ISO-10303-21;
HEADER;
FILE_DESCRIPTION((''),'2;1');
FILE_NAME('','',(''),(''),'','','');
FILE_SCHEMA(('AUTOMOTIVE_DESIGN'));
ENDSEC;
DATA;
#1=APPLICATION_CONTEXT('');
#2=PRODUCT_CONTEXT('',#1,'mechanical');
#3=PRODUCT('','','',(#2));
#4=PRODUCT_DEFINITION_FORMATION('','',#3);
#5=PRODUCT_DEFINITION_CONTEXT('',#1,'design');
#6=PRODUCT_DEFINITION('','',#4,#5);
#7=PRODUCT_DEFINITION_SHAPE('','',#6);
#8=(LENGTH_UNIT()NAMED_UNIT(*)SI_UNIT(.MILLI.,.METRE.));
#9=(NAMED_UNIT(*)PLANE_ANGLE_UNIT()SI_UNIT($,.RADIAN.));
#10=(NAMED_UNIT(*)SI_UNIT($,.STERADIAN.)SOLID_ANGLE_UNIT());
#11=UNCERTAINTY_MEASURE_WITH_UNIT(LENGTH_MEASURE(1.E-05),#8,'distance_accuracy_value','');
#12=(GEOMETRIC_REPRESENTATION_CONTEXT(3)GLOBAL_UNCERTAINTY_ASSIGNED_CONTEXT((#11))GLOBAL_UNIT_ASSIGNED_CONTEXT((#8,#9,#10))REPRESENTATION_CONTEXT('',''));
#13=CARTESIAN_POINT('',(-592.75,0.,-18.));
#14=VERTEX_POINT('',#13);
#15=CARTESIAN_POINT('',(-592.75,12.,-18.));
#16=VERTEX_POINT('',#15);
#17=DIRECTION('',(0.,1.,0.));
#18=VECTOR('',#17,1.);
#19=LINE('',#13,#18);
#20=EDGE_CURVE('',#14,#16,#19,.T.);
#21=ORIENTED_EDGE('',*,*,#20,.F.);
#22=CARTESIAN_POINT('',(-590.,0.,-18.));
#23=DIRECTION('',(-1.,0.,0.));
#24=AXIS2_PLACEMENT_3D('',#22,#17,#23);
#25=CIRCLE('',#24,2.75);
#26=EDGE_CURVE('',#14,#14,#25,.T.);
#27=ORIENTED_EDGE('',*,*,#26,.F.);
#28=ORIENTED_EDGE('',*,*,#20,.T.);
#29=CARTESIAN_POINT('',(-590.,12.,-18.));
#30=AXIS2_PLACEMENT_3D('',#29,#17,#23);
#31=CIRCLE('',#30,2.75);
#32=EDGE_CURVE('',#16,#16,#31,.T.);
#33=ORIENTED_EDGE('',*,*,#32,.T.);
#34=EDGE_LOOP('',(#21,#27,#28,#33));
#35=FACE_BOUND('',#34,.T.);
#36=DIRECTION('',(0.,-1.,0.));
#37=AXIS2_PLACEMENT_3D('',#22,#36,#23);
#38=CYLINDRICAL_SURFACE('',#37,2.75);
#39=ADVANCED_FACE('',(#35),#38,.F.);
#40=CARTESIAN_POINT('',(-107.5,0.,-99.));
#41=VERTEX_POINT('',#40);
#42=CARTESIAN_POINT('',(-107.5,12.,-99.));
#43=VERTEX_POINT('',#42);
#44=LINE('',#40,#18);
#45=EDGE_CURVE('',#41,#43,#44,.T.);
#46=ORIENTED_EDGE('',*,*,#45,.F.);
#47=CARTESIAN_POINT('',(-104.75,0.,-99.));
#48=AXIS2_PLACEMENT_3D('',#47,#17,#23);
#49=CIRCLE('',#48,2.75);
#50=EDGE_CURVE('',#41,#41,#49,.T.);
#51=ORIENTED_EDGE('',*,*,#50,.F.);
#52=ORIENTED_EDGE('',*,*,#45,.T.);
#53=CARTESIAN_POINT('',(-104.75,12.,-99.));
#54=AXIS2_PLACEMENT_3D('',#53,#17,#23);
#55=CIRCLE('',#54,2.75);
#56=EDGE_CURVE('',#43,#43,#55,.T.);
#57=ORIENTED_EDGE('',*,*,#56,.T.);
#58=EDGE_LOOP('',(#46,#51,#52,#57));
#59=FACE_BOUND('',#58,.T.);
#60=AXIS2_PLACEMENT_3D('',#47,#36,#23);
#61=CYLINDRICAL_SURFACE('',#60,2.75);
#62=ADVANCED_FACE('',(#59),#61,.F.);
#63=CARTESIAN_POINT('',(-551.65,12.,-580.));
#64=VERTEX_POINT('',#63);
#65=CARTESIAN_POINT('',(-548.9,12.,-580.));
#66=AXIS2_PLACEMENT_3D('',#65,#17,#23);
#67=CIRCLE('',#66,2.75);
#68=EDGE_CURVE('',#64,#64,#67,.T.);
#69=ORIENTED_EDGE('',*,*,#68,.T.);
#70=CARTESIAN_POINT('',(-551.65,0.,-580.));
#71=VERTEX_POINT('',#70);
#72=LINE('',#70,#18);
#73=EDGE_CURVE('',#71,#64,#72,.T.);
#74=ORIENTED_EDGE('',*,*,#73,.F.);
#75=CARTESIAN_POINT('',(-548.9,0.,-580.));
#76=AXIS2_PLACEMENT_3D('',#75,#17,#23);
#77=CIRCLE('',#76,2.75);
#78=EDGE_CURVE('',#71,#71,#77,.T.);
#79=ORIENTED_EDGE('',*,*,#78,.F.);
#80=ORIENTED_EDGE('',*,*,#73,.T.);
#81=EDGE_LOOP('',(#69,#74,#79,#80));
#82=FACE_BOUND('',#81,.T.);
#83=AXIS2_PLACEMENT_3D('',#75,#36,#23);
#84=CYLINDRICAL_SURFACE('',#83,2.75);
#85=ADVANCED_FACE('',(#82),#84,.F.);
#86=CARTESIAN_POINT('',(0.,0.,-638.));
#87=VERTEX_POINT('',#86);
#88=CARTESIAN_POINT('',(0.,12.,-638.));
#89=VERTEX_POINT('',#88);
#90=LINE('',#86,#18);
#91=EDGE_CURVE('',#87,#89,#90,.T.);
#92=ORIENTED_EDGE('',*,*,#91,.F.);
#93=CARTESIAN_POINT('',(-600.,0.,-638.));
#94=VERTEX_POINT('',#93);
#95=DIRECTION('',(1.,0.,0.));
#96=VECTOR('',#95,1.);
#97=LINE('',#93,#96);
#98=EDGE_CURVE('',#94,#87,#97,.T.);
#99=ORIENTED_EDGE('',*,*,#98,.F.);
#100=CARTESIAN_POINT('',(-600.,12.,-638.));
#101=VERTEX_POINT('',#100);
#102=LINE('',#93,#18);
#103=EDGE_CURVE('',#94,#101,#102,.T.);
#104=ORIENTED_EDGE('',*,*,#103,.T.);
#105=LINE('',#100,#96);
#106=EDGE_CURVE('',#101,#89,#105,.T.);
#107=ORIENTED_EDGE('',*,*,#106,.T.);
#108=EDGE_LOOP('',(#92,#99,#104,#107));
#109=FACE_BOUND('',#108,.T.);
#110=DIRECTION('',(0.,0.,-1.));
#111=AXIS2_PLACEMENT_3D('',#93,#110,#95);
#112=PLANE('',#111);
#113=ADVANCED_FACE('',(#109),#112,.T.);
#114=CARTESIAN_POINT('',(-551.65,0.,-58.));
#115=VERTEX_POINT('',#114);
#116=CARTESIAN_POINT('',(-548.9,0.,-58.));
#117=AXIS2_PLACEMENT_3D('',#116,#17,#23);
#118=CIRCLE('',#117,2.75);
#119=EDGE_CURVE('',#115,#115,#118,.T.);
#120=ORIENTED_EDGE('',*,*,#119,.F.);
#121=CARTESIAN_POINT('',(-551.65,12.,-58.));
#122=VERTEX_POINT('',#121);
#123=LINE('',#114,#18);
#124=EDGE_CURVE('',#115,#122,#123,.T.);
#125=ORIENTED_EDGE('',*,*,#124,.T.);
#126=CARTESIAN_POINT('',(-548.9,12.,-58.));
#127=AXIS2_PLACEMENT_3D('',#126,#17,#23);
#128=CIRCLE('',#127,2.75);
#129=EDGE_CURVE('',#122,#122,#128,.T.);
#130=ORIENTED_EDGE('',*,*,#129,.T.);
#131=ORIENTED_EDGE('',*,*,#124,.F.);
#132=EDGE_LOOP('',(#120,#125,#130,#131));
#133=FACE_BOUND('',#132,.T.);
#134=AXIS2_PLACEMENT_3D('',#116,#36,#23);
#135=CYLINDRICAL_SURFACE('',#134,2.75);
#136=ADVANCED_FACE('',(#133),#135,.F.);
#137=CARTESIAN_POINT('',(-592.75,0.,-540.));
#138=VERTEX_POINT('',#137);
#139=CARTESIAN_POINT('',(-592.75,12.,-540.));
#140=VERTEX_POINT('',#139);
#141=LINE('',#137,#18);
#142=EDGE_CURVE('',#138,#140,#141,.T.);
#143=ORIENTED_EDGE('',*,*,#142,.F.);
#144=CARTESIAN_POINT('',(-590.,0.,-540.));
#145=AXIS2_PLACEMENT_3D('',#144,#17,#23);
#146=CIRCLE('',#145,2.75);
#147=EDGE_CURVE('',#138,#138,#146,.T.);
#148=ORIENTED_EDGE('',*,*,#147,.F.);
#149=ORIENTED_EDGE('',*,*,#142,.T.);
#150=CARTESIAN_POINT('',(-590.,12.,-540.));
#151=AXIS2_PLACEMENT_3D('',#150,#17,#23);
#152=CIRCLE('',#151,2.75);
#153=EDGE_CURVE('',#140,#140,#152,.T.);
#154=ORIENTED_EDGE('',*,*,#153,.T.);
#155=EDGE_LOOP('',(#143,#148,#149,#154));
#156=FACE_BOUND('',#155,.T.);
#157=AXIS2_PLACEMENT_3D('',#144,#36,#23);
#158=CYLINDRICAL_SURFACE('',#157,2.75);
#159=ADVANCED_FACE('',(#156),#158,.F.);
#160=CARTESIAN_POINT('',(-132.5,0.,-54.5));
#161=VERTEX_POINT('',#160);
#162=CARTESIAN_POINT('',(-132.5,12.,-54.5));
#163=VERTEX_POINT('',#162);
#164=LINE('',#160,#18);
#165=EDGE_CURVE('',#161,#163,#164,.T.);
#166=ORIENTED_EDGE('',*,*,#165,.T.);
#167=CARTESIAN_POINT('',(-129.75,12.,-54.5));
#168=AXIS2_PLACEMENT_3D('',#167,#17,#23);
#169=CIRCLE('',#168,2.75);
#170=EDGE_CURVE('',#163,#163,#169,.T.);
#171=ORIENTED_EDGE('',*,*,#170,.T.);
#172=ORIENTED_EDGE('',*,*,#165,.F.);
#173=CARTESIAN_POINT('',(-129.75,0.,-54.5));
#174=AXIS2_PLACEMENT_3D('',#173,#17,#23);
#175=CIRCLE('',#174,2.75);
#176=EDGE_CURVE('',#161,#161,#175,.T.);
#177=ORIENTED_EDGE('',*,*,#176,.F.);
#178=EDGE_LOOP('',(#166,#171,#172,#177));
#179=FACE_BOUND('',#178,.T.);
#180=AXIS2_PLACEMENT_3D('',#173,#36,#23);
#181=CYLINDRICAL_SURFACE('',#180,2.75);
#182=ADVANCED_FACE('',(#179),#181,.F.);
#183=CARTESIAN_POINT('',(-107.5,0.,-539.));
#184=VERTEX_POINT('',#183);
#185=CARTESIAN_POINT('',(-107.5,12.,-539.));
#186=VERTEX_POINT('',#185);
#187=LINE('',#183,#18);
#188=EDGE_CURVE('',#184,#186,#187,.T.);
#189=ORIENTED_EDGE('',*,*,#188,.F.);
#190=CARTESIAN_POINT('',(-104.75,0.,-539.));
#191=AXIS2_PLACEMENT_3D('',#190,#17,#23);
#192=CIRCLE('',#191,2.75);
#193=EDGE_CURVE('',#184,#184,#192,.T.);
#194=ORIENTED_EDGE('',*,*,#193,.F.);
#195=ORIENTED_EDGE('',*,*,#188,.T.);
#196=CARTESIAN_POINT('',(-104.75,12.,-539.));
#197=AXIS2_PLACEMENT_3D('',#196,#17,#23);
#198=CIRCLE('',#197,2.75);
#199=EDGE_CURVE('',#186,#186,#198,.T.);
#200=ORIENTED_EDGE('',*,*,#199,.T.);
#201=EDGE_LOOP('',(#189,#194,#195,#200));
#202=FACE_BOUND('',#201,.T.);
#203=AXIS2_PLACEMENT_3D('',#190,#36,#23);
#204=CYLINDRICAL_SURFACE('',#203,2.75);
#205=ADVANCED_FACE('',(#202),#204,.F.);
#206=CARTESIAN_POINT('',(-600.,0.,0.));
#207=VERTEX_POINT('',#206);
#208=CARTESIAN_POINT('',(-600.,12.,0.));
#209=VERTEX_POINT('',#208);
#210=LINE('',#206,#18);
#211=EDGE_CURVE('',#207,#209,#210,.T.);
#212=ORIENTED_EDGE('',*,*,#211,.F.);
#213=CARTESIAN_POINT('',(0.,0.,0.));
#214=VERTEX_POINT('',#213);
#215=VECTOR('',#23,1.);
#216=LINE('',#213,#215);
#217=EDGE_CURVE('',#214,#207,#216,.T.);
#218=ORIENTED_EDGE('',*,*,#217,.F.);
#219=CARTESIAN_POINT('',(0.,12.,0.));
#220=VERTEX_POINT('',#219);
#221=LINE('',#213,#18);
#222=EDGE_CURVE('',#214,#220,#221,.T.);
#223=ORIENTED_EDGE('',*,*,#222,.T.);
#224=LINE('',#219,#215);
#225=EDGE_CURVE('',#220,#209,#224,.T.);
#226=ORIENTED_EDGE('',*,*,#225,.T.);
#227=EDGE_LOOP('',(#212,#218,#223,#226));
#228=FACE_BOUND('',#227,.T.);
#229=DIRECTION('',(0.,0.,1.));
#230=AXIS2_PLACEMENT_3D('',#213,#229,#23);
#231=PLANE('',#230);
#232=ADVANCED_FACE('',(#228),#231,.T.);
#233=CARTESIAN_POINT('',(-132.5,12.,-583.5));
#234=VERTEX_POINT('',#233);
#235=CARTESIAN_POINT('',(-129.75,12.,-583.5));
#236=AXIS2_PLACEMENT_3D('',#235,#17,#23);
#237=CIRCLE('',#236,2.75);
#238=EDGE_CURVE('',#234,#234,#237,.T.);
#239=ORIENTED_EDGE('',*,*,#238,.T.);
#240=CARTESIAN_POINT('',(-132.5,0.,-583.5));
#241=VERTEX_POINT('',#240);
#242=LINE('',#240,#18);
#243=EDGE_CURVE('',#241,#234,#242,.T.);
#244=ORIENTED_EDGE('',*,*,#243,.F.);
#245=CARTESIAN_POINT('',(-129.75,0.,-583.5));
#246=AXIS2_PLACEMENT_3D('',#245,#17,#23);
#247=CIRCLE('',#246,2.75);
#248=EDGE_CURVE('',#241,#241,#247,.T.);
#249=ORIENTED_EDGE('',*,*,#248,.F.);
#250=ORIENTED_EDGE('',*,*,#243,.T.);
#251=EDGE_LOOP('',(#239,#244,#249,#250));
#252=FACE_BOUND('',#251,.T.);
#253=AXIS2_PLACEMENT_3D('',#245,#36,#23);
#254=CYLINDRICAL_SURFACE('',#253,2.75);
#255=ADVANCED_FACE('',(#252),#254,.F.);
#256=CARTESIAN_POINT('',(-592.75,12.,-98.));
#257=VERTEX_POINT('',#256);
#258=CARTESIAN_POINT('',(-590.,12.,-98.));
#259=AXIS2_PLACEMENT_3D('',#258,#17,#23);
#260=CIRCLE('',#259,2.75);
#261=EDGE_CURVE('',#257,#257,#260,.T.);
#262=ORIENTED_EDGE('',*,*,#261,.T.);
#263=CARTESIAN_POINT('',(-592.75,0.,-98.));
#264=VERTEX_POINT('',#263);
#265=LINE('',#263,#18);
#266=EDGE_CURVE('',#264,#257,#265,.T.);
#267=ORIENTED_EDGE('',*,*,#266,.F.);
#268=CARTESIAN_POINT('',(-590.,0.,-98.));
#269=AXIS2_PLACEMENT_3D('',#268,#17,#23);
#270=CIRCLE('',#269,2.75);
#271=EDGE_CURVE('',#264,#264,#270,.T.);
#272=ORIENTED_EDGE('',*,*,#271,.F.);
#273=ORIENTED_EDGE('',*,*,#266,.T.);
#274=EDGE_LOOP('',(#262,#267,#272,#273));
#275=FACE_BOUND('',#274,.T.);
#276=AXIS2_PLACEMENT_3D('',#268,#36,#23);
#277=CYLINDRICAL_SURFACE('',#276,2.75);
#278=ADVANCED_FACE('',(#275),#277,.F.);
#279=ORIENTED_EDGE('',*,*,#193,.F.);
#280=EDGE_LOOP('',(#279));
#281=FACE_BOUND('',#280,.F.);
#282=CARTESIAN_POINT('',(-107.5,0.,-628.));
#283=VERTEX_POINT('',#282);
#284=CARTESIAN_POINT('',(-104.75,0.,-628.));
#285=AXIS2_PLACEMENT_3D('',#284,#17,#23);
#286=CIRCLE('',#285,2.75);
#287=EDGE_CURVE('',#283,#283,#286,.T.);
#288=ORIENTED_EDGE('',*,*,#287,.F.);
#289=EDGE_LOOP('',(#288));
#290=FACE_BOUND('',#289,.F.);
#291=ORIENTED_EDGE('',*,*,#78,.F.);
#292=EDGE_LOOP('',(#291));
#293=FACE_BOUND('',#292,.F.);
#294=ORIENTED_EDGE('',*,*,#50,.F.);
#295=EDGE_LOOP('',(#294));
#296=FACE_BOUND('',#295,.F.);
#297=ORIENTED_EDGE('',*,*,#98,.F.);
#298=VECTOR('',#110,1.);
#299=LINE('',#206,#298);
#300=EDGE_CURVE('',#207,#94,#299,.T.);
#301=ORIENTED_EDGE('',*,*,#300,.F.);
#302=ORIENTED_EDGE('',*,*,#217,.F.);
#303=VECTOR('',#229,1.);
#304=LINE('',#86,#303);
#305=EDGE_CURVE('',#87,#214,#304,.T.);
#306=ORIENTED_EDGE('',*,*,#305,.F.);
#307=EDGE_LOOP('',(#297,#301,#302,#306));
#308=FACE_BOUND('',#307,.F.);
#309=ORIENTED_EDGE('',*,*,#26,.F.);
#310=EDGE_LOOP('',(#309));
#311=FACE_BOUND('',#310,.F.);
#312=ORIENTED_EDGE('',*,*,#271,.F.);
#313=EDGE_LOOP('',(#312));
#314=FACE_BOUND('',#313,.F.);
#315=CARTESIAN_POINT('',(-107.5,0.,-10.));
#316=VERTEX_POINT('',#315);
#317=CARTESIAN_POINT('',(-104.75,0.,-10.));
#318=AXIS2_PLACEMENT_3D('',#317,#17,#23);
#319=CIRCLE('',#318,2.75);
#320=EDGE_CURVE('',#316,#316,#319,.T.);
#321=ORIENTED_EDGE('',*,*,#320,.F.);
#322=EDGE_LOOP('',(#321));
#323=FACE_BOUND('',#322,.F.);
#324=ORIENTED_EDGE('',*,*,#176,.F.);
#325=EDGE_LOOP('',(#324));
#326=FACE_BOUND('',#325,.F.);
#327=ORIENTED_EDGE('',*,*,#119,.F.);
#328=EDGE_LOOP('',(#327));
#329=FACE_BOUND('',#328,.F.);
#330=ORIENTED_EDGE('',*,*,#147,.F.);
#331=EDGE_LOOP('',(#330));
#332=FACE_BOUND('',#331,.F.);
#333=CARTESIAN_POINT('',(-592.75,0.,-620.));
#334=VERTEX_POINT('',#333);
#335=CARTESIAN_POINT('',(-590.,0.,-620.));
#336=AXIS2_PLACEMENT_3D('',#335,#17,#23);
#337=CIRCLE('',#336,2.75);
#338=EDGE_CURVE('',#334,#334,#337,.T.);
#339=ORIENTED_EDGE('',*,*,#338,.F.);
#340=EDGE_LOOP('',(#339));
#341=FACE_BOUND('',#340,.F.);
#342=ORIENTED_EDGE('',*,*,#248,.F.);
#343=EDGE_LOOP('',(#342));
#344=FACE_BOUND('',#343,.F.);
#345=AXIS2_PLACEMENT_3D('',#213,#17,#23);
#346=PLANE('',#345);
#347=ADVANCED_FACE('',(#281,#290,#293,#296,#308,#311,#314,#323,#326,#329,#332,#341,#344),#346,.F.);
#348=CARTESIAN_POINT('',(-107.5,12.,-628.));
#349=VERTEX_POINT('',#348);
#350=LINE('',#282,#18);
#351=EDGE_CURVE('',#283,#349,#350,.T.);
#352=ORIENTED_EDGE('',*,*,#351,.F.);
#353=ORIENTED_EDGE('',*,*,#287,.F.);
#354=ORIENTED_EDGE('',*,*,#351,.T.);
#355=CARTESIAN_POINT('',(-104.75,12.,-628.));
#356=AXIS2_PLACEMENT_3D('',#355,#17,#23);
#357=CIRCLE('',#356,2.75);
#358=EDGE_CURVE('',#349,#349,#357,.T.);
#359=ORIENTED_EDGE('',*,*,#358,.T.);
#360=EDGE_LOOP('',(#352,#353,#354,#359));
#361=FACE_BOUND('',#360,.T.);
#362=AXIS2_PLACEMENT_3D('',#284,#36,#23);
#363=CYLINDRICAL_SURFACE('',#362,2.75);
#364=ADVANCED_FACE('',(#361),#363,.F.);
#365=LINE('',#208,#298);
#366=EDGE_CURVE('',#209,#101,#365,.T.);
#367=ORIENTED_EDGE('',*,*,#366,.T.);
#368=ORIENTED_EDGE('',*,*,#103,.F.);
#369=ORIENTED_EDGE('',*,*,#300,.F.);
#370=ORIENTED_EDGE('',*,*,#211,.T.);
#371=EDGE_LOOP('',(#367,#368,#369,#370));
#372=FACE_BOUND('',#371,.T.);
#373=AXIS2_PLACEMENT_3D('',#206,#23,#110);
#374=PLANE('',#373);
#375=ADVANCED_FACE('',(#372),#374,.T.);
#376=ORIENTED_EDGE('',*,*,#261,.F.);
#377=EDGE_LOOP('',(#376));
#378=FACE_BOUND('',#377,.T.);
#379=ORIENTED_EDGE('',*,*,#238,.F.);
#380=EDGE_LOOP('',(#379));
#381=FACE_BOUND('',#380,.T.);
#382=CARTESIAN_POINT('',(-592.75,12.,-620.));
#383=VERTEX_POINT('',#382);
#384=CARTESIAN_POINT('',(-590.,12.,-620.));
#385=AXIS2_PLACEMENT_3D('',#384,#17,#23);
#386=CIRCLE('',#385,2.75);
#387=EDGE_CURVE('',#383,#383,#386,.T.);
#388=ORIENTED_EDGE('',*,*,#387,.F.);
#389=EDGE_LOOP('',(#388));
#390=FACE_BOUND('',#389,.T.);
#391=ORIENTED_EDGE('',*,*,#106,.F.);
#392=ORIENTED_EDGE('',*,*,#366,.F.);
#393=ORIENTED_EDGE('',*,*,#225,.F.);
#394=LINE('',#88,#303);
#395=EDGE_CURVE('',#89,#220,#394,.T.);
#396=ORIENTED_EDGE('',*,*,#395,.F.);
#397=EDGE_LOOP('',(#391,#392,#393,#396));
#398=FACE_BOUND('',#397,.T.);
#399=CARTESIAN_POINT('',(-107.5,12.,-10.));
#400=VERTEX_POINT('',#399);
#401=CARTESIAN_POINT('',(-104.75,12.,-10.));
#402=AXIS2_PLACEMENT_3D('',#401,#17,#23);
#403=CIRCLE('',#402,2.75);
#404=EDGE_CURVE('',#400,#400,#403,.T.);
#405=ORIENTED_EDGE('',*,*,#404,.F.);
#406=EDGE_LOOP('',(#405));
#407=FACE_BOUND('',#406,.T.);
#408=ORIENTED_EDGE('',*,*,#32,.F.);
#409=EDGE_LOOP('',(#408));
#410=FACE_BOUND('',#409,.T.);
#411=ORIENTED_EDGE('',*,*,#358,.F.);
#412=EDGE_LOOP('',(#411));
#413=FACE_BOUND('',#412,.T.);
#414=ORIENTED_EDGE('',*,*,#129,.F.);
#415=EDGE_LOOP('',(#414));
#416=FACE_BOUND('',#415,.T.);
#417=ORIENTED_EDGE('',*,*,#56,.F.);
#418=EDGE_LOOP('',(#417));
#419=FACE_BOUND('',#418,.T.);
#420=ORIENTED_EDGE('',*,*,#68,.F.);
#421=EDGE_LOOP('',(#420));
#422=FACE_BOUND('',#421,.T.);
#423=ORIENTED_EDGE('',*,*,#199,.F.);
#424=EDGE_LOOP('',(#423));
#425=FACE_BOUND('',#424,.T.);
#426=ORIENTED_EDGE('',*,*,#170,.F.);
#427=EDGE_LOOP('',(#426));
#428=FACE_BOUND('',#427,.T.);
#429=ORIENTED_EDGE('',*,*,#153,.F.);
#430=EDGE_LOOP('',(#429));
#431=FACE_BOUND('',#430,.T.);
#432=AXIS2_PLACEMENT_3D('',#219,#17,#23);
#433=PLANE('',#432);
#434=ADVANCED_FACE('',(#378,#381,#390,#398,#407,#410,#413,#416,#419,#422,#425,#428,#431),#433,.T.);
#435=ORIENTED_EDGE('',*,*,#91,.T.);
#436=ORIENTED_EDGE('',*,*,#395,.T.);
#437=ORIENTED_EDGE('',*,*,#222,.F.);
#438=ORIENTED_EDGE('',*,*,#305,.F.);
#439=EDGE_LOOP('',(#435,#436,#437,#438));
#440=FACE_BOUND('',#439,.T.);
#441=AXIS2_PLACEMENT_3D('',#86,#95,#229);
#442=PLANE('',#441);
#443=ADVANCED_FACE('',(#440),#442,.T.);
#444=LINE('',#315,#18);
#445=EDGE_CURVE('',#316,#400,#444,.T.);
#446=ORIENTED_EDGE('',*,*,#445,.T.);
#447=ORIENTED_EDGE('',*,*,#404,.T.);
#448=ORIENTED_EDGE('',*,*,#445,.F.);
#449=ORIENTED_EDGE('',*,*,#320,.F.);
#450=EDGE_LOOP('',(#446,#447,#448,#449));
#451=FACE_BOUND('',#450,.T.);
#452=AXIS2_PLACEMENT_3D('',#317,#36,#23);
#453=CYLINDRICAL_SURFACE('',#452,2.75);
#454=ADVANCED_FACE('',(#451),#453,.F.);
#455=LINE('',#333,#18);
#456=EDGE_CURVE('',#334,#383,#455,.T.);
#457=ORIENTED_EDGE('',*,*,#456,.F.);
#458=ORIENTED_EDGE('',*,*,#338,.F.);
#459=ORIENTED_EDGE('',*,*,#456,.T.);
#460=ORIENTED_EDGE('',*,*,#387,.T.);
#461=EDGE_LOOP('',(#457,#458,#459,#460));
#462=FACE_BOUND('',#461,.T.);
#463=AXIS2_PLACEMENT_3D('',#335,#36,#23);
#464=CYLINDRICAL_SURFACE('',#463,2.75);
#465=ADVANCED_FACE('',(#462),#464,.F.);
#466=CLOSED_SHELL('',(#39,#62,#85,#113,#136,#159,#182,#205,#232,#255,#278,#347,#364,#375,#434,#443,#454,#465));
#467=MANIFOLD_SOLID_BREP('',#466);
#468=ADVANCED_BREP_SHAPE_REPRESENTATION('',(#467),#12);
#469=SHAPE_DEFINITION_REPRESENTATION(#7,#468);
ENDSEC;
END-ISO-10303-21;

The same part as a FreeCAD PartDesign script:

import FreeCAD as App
import Part
import Sketcher
Q = App.Units.Quantity

doc = App.newDocument("Part")
body = doc.addObject("PartDesign::Body", "Body")

# Sketch on XZ plane
sketch1 = doc.addObject("Sketcher::SketchObject", "Sketch")
body.addObject(sketch1)
sketch1.AttachmentSupport = (doc.XZ_Plane, [""])
sketch1.MapMode = "FlatFace"
sketch1.addGeometry([
    Part.LineSegment(App.Vector(-600, 0, 0), App.Vector(0, 0, 0)),  # 0
    Part.LineSegment(App.Vector(0, 0, 0), App.Vector(0, -638, 0)),  # 1
    Part.LineSegment(App.Vector(0, -638, 0), App.Vector(-600, -638, 0)),  # 2
    Part.LineSegment(App.Vector(-600, -638, 0), App.Vector(-600, 0, 0)),  # 3
    Part.Circle(App.Vector(-104.75, -628, 0), App.Vector(0, 0, 1), 2.75),  # 4
    Part.Circle(App.Vector(-129.75, -583.5, 0), App.Vector(0, 0, 1), 2.75),  # 5
    Part.Circle(App.Vector(-104.75, -539, 0), App.Vector(0, 0, 1), 2.75),  # 6
    Part.Circle(App.Vector(-590, -620, 0), App.Vector(0, 0, 1), 2.75),  # 7
    Part.Circle(App.Vector(-548.9, -580, 0), App.Vector(0, 0, 1), 2.75),  # 8
    Part.Circle(App.Vector(-590, -540, 0), App.Vector(0, 0, 1), 2.75),  # 9
    Part.Circle(App.Vector(-104.75, -99, 0), App.Vector(0, 0, 1), 2.75),  # 10
    Part.Circle(App.Vector(-129.75, -54.5, 0), App.Vector(0, 0, 1), 2.75),  # 11
    Part.Circle(App.Vector(-104.75, -10, 0), App.Vector(0, 0, 1), 2.75),  # 12
    Part.Circle(App.Vector(-590, -98, 0), App.Vector(0, 0, 1), 2.75),  # 13
    Part.Circle(App.Vector(-548.9, -58, 0), App.Vector(0, 0, 1), 2.75),  # 14
    Part.Circle(App.Vector(-590, -18, 0), App.Vector(0, 0, 1), 2.75),  # 15
], False)
sketch1.addConstraint([
    Sketcher.Constraint("Coincident", 0, 2, 1, 1),
    Sketcher.Constraint("Coincident", 1, 2, 2, 1),
    Sketcher.Constraint("Coincident", 2, 2, 3, 1),
    Sketcher.Constraint("Coincident", 3, 2, 0, 1),
    Sketcher.Constraint("Horizontal", 0),
    Sketcher.Constraint("Vertical", 1),
    Sketcher.Constraint("Horizontal", 2),
    Sketcher.Constraint("Vertical", 3),
    Sketcher.Constraint("Coincident", 0, 2, -1, 1),
    Sketcher.Constraint("Equal", 4, 5),
    Sketcher.Constraint("Equal", 5, 6),
    Sketcher.Constraint("Equal", 6, 7),
    Sketcher.Constraint("Equal", 7, 8),
    Sketcher.Constraint("Equal", 8, 9),
    Sketcher.Constraint("Equal", 9, 10),
    Sketcher.Constraint("Equal", 10, 11),
    Sketcher.Constraint("Equal", 11, 12),
    Sketcher.Constraint("Equal", 12, 13),
    Sketcher.Constraint("Equal", 13, 14),
    Sketcher.Constraint("Equal", 14, 15),
    Sketcher.Constraint("Vertical", 4, 3, 6, 3),
    Sketcher.Constraint("Vertical", 7, 3, 9, 3),
    Sketcher.Constraint("Vertical", 6, 3, 10, 3),
    Sketcher.Constraint("Vertical", 5, 3, 11, 3),
    Sketcher.Constraint("Vertical", 10, 3, 12, 3),
    Sketcher.Constraint("Vertical", 9, 3, 13, 3),
    Sketcher.Constraint("Vertical", 8, 3, 14, 3),
    Sketcher.Constraint("Vertical", 13, 3, 15, 3),
    Sketcher.Constraint("Diameter", 4, Q("5.5 mm")),
    Sketcher.Constraint("DistanceX", 0, 1, 0, 2, Q("600 mm")),
    Sketcher.Constraint("DistanceY", 1, 2, 1, 1, Q("638 mm")),
    Sketcher.Constraint("DistanceY", 12, 3, -1, 1, Q("10 mm")),
    Sketcher.Constraint("DistanceY", 15, 3, -1, 1, Q("18 mm")),
    Sketcher.Constraint("DistanceX", 5, 3, 4, 3, Q("25 mm")),
    Sketcher.Constraint("DistanceY", 4, 3, 6, 3, Q("89 mm")),
    Sketcher.Constraint("DistanceY", 7, 3, 8, 3, Q("40 mm")),
    Sketcher.Constraint("DistanceY", 8, 3, 9, 3, Q("40 mm")),
    Sketcher.Constraint("DistanceY", 10, 3, 12, 3, Q("89 mm")),
    Sketcher.Constraint("DistanceY", 13, 3, 14, 3, Q("40 mm")),
    Sketcher.Constraint("DistanceY", 14, 3, 15, 3, Q("40 mm")),
    Sketcher.Constraint("DistanceY", 1, 2, 4, 3, Q("10 mm")),
    Sketcher.Constraint("DistanceX", 2, 2, 7, 3, Q("10 mm")),
    Sketcher.Constraint("DistanceY", 2, 2, 7, 3, Q("18 mm")),
    Sketcher.Constraint("DistanceY", 4, 3, 5, 3, Q("44.5 mm")),
    Sketcher.Constraint("DistanceX", 7, 3, 8, 3, Q("41.1 mm")),
    Sketcher.Constraint("DistanceY", 10, 3, 11, 3, Q("44.5 mm")),
    Sketcher.Constraint("DistanceX", 2, 2, 4, 3, Q("495.25 mm")),
])
pad1 = doc.addObject("PartDesign::Pad", "Pad")
body.addObject(pad1)
pad1.Profile = sketch1
pad1.Length = 12
pad1.Reversed = True

doc.recompute()
